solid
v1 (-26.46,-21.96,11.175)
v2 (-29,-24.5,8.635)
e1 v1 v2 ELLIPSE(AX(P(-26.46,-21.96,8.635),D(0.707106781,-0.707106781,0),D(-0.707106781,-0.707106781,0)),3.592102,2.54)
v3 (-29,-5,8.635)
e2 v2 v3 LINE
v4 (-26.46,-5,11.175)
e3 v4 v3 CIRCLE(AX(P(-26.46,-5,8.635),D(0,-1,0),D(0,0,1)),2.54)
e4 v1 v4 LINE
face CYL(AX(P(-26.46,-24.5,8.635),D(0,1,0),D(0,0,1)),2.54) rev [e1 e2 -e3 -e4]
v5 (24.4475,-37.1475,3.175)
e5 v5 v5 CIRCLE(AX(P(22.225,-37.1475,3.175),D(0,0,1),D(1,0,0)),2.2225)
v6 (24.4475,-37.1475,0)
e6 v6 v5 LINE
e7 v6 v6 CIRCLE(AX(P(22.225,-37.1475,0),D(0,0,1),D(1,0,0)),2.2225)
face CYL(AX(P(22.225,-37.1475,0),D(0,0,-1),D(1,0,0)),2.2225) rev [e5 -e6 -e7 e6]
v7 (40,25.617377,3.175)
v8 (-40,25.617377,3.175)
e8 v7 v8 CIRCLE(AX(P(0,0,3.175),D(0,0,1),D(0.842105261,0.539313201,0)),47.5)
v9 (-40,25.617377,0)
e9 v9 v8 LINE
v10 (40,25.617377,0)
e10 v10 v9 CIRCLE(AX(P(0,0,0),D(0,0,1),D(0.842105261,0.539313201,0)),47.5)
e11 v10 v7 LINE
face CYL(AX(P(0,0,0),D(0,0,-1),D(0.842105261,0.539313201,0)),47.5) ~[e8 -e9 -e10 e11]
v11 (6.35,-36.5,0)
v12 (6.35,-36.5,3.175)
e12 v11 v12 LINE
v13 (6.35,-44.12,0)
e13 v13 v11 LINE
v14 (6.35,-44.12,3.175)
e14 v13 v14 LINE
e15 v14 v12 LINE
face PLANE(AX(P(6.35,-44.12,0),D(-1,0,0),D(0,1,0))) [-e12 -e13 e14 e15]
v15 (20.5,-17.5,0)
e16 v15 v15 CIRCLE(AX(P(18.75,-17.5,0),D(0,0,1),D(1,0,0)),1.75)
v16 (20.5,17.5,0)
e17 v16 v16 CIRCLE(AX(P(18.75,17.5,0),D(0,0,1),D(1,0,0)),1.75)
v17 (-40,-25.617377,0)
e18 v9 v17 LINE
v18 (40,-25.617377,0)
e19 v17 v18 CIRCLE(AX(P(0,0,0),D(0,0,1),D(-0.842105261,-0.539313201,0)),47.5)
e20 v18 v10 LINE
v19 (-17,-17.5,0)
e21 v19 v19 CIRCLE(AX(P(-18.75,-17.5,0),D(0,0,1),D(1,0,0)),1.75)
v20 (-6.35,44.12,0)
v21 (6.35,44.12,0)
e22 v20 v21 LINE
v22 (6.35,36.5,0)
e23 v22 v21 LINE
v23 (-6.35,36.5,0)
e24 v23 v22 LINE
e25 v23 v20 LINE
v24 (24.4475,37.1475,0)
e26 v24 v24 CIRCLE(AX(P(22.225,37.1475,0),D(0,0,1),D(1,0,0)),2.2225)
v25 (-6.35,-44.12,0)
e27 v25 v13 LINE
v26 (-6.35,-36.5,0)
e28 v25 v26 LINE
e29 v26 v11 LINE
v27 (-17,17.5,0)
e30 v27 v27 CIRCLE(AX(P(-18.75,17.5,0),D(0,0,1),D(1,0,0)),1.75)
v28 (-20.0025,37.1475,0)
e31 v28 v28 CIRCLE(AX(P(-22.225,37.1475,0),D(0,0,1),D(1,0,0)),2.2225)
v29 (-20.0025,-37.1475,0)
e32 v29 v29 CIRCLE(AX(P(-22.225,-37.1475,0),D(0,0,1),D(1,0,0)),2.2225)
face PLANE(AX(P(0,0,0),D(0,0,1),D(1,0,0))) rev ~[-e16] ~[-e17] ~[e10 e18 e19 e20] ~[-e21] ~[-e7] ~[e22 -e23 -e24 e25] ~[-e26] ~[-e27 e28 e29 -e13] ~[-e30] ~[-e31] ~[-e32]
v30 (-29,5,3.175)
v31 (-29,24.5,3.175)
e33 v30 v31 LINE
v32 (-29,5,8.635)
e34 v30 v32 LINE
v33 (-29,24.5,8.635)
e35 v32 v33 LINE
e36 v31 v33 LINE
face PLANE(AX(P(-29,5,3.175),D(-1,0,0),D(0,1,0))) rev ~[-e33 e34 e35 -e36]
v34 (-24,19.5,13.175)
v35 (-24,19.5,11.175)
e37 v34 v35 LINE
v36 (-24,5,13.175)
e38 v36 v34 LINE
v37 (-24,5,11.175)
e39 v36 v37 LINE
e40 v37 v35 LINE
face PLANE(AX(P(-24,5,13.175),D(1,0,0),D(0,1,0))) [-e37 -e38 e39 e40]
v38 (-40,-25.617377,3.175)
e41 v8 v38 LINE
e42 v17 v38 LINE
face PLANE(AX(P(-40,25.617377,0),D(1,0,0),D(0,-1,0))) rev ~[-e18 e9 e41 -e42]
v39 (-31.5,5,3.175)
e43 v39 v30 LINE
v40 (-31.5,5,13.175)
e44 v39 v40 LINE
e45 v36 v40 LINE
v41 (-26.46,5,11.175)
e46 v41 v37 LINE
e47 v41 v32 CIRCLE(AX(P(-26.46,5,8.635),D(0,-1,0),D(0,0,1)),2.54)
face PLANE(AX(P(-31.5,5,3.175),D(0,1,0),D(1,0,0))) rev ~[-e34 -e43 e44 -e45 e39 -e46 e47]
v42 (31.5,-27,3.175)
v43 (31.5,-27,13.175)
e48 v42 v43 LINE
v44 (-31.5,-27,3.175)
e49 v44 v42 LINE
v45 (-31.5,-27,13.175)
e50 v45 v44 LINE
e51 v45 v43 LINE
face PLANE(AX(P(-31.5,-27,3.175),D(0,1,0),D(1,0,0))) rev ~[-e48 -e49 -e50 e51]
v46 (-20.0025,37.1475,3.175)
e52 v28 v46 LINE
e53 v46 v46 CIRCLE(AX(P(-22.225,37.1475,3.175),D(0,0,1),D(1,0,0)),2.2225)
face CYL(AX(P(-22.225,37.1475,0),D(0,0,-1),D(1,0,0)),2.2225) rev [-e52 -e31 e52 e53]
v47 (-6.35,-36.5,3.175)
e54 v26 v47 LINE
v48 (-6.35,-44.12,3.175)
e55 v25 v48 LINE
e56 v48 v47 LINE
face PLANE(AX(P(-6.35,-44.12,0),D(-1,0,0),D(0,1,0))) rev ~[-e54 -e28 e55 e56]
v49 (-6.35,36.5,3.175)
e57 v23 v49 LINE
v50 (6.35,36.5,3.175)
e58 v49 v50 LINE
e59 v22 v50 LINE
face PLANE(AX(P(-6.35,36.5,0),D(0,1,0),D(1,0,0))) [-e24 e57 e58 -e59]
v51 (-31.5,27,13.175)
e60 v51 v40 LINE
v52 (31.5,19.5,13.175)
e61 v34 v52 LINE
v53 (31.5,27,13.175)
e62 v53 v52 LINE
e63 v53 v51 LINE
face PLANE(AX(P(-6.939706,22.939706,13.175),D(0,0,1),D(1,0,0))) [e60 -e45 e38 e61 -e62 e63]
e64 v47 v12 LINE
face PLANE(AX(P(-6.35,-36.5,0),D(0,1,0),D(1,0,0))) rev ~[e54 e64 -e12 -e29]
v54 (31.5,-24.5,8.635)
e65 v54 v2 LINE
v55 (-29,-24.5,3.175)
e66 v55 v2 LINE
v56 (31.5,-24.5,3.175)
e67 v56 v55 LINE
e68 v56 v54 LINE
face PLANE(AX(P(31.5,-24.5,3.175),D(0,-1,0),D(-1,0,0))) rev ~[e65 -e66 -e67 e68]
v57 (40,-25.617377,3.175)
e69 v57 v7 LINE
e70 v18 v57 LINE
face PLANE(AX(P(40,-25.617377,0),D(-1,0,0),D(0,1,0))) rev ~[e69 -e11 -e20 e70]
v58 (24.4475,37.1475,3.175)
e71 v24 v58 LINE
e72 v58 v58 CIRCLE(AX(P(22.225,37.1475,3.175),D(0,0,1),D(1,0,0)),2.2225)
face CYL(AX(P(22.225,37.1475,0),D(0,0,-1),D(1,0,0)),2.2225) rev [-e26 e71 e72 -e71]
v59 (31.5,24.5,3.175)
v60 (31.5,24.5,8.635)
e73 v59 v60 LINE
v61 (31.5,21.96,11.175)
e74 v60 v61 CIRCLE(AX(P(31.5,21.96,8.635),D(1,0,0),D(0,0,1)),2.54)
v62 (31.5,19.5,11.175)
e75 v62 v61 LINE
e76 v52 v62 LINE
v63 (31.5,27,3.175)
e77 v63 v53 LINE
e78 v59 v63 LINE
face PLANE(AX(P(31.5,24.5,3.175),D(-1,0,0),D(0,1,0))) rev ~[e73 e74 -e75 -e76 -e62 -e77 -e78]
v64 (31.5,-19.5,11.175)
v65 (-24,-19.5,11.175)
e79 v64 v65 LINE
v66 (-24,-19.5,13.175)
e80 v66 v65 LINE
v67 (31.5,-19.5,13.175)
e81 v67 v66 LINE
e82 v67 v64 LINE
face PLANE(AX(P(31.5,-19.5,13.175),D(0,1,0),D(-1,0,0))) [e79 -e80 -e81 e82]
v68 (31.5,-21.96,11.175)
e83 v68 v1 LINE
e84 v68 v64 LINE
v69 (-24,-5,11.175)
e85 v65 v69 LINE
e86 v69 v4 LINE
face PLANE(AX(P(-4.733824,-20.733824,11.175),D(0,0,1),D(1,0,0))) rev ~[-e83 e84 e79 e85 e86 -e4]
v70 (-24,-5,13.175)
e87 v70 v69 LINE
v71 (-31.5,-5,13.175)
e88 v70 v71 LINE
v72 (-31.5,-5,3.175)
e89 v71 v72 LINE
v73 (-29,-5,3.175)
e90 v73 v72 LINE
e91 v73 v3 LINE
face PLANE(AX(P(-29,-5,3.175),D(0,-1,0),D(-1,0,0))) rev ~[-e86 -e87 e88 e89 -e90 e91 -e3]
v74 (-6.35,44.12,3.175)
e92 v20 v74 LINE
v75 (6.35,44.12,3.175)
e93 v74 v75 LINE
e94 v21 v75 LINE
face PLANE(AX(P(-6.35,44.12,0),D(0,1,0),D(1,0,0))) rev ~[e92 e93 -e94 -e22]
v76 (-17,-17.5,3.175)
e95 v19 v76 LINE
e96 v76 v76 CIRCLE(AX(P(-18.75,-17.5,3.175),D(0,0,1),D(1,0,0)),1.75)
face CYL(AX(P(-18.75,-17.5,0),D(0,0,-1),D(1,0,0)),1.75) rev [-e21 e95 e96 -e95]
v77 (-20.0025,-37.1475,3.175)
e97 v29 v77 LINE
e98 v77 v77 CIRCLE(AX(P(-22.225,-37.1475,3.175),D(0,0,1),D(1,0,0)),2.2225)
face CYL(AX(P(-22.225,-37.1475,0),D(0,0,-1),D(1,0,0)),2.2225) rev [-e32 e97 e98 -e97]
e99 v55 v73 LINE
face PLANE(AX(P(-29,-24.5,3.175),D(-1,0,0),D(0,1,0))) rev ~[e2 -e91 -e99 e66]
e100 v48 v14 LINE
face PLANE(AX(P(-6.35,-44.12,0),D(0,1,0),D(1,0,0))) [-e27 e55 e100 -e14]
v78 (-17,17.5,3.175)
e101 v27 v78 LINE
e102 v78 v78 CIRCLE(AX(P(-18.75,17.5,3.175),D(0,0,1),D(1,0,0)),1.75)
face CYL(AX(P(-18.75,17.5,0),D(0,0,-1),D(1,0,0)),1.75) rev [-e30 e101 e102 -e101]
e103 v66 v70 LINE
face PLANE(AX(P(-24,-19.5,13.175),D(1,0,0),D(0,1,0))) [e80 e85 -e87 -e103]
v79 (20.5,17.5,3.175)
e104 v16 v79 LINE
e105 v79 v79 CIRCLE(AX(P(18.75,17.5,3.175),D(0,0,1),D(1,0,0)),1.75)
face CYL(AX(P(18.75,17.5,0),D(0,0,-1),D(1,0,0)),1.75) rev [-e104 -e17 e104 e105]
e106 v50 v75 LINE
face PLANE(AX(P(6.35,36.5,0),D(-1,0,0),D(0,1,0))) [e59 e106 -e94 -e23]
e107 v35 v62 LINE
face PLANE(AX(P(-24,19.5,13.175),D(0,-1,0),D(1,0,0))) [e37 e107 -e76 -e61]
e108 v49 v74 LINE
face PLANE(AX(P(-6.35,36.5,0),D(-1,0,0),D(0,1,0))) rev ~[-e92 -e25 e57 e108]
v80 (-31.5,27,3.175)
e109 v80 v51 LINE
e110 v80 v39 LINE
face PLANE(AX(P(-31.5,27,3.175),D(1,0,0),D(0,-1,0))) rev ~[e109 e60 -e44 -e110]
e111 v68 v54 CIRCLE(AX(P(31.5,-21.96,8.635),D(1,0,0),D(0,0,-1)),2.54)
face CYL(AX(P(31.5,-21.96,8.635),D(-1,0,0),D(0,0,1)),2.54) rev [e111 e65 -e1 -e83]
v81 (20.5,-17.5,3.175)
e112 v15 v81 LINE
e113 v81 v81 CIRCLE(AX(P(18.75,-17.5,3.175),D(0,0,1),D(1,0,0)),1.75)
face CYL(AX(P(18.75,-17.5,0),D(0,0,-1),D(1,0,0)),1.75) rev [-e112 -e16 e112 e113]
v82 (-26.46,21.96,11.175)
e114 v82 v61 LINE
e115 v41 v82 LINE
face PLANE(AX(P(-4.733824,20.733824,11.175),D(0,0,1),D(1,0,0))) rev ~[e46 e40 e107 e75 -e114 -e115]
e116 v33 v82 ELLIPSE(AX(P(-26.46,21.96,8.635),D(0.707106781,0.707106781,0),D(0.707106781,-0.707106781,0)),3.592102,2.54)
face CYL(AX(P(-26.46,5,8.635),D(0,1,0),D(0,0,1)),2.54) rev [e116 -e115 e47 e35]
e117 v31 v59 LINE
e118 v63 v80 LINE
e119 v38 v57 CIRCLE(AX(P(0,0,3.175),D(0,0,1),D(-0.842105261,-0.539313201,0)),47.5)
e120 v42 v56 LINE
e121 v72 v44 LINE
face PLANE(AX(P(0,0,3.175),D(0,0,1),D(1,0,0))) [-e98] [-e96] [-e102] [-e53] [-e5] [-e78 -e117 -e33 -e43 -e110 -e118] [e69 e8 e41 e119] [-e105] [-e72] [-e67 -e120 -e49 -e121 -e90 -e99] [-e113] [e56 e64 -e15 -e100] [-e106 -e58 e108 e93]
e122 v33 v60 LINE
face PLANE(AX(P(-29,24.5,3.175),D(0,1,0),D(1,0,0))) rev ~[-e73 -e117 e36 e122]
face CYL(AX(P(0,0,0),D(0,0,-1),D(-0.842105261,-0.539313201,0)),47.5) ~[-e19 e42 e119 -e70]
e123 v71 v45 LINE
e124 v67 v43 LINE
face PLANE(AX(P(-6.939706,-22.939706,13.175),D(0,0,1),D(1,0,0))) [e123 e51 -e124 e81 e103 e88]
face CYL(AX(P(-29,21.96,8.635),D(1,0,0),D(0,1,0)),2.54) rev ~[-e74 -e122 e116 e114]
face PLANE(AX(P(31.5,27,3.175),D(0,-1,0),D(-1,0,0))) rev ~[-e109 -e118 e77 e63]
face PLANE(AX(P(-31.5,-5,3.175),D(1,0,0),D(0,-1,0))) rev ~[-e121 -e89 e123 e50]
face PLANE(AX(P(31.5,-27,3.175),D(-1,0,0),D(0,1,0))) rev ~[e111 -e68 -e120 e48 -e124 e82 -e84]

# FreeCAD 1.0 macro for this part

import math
import FreeCAD as App
import Part
import Sketcher
from FreeCAD import Vector


def edges_at(feature, points):
    """Names of the edges that pass closest to the given points."""
    edges = feature.Shape.Edges
    near = lambda p: min(range(len(edges)), key=lambda i: edges[i].distToShape(Part.Vertex(*p))[0])
    return sorted({f"Edge{near(p) + 1}" for p in points})


def add_polygon(sketch, points):
    """Adds a closed chain of lines whose ends are joined by coincident constraints."""
    first, n = sketch.GeometryCount, len(points)
    for a, b in zip(points, points[1:] + points[:1]):
        sketch.addGeometry(Part.LineSegment(App.Vector(*a, 0), App.Vector(*b, 0)), False)
    for i in range(n):
        sketch.addConstraint(Sketcher.Constraint("Coincident", first + i, 2, first + (i + 1) % n, 1))

doc = App.newDocument("Part")
params = doc.addObject("Spreadsheet::Sheet", "Params")
for row, (alias, value) in enumerate([
    ("sketch1_diameter", "3.5 mm"),
    ("sketch1_radius", "47.5 mm"),
    ("sketch1_width", "12.7 mm"),
    ("sketch1_height", "7.62 mm"),
    ("pad1_length", "3.175 mm"),
    ("sketch2_width", "63 mm"),
    ("sketch2_height", "22 mm"),
    ("sketch2_width2", "60.5 mm"),
    ("pad2_length", "10 mm"),
    ("sketch3_width", "63 mm"),
    ("sketch3_height", "22 mm"),
    ("sketch3_width2", "55.5 mm"),
    ("pad3_length", "2 mm"),
    ("fillet_radius", "2.54 mm"),
], start=1):
    params.set(f"A{row}", alias)
    params.set(f"B{row}", "=" + value)
    params.setAlias(f"B{row}", alias)

body = doc.addObject("PartDesign::Body", "Body")

# Sketch on XY plane
sketch1 = body.newObject("Sketcher::SketchObject", "Sketch")
sketch1.AttachmentSupport = (doc.getObject("XY_Plane"), [""])
sketch1.MapMode = "FlatFace"
sketch1.addGeometry(Part.LineSegment(Vector(40, -25.6, 0), Vector(40, 25.6, 0)), False)  # 0
sketch1.addGeometry(Part.ArcOfCircle(Part.Circle(Vector(0, 0, 0), Vector(0, 0, 1), 47.5), math.radians(33), math.radians(147)), False)  # 1
sketch1.addGeometry(Part.LineSegment(Vector(-40, 25.6, 0), Vector(-40, -25.6, 0)), False)  # 2
sketch1.addGeometry(Part.ArcOfCircle(Part.Circle(Vector(0, 0, 0), Vector(0, 0, 1), 47.5), math.radians(-147), math.radians(-33)), False)  # 3
sketch1.addGeometry(Part.Circle(Vector(-22.2, -37.1, 0), Vector(0, 0, 1), 2.2), False)  # 4
sketch1.addGeometry(Part.Circle(Vector(-18.8, -17.5, 0), Vector(0, 0, 1), 1.8), False)  # 5
add_polygon(sketch1, [(6.3, -44.1), (-6.3, -44.1), (-6.3, -36.5), (6.3, -36.5)])  # lines 6-9
sketch1.addGeometry(Part.Circle(Vector(22.2, -37.1, 0), Vector(0, 0, 1), 2.2), False)  # 10
sketch1.addGeometry(Part.Circle(Vector(18.8, -17.5, 0), Vector(0, 0, 1), 1.8), False)  # 11
sketch1.addGeometry(Part.Circle(Vector(-18.8, 17.5, 0), Vector(0, 0, 1), 1.8), False)  # 12
sketch1.addGeometry(Part.Circle(Vector(-22.2, 37.1, 0), Vector(0, 0, 1), 2.2), False)  # 13
sketch1.addGeometry(Part.Circle(Vector(18.8, 17.5, 0), Vector(0, 0, 1), 1.8), False)  # 14
add_polygon(sketch1, [(6.3, 36.5), (-6.3, 36.5), (-6.3, 44.1), (6.3, 44.1)])  # lines 15-18
sketch1.addGeometry(Part.Circle(Vector(22.2, 37.1, 0), Vector(0, 0, 1), 2.2), False)  # 19
sketch1.addConstraint([
    Sketcher.Constraint("Coincident", 0, 2, 1, 1),
    Sketcher.Constraint("Coincident", 1, 2, 2, 1),
    Sketcher.Constraint("Coincident", 2, 2, 3, 1),
    Sketcher.Constraint("Coincident", 3, 2, 0, 1),
    Sketcher.Constraint("Vertical", 0),
    Sketcher.Constraint("Vertical", 2),
    Sketcher.Constraint("Horizontal", 6),
    Sketcher.Constraint("Vertical", 7),
    Sketcher.Constraint("Horizontal", 8),
    Sketcher.Constraint("Vertical", 9),
    Sketcher.Constraint("Horizontal", 15),
    Sketcher.Constraint("Vertical", 16),
    Sketcher.Constraint("Horizontal", 17),
    Sketcher.Constraint("Vertical", 18),
    Sketcher.Constraint("Coincident", 1, 3, -1, 1),
    Sketcher.Constraint("Coincident", 3, 3, -1, 1),
    Sketcher.Constraint("Equal", 1, 3),
    Sketcher.Constraint("Equal", 4, 10),
    Sketcher.Constraint("Equal", 5, 11),
    Sketcher.Constraint("Equal", 11, 12),
    Sketcher.Constraint("Equal", 10, 13),
    Sketcher.Constraint("Equal", 12, 14),
    Sketcher.Constraint("Equal", 13, 19),
    Sketcher.Constraint("Symmetric", 11, 3, 12, 3, -1, 1),
    Sketcher.Constraint("Symmetric", 10, 3, 13, 3, -1, 1),
    Sketcher.Constraint("Symmetric", 5, 3, 14, 3, -1, 1),
    Sketcher.Constraint("Symmetric", 4, 3, 19, 3, -1, 1),
    Sketcher.Constraint("Symmetric", 8, 2, 15, 2, -1, 1),
    Sketcher.Constraint("Symmetric", 6, 2, 17, 2, -1, 1),
    Sketcher.Constraint("Symmetric", 4, 3, 10, 3, -2),
    Sketcher.Constraint("Symmetric", 5, 3, 11, 3, -2),
    Sketcher.Constraint("Horizontal", 0, 2, 1, 2),
    Sketcher.Constraint("Vertical", 7, 2, 15, 2),
    Sketcher.Constraint("Diameter", 5, 3.5),
    Sketcher.Constraint("Radius", 1, 47.5),
    Sketcher.Constraint("Diameter", 4, 4.445),
    Sketcher.Constraint("DistanceX", 6, 2, 6, 1, 12.7),
    Sketcher.Constraint("DistanceX", -1, 1, 0, 2, 40.0),
    Sketcher.Constraint("DistanceY", 5, 3, 12, 3, 35.0),
    Sketcher.Constraint("DistanceY", 7, 2, 5, 3, 19.0),
    Sketcher.Constraint("DistanceY", 7, 1, 7, 2, 7.62),
    Sketcher.Constraint("DistanceX", 5, 3, 11, 3, 37.5),
    Sketcher.Constraint("DistanceX", 4, 3, 10, 3, 44.45),
    Sketcher.Constraint("DistanceY", 4, 3, -1, 1, 37.1475),
])
sketch1.setExpression("Constraints[41]", "Params.sketch1_diameter")
sketch1.setExpression("Constraints[42]", "Params.sketch1_radius")
sketch1.setExpression("Constraints[44]", "Params.sketch1_width")
sketch1.setExpression("Constraints[48]", "Params.sketch1_height")
pad1 = body.newObject("PartDesign::Pad", "Pad")
pad1.Profile = sketch1
pad1.setExpression("Length", "Params.pad1_length")

# Sketch on XY plane
sketch2 = body.newObject("Sketcher::SketchObject", "Sketch001")
sketch2.AttachmentSupport = (doc.getObject("XY_Plane"), [""])
sketch2.MapMode = "FlatFace"
sketch2.AttachmentOffset = App.Placement(Vector(0, 0, 3.175), App.Rotation())
add_polygon(sketch2, [(-31.5, -27), (31.5, -27), (31.5, -24.5), (-29, -24.5), (-29, -5), (-31.5, -5)])  # lines 0-5
add_polygon(sketch2, [(31.5, 24.5), (31.5, 27), (-31.5, 27), (-31.5, 5), (-29, 5), (-29, 24.5)])  # lines 6-11
sketch2.addConstraint([
    Sketcher.Constraint("Horizontal", 0),
    Sketcher.Constraint("Vertical", 1),
    Sketcher.Constraint("Horizontal", 2),
    Sketcher.Constraint("Vertical", 3),
    Sketcher.Constraint("Horizontal", 4),
    Sketcher.Constraint("Vertical", 5),
    Sketcher.Constraint("Vertical", 6),
    Sketcher.Constraint("Horizontal", 7),
    Sketcher.Constraint("Vertical", 8),
    Sketcher.Constraint("Horizontal", 9),
    Sketcher.Constraint("Vertical", 10),
    Sketcher.Constraint("Horizontal", 11),
    Sketcher.Constraint("Symmetric", 5, 2, 6, 2, -1, 1),
    Sketcher.Constraint("Symmetric", 4, 2, 8, 2, -1),
    Sketcher.Constraint("Symmetric", 2, 2, 10, 2, -1),
    Sketcher.Constraint("Vertical", 1, 2, 6, 2),
    Sketcher.Constraint("Equal", 9, 1),
    Sketcher.Constraint("DistanceX", 0, 1, 0, 2, 63.0),
    Sketcher.Constraint("DistanceY", 5, 2, 5, 1, 22.0),
    Sketcher.Constraint("DistanceX", 2, 2, 2, 1, 60.5),
    Sketcher.Constraint("DistanceY", 0, 2, -1, 1, 27.0),
])
sketch2.setExpression("Constraints[29]", "Params.sketch2_width")
sketch2.setExpression("Constraints[30]", "Params.sketch2_height")
sketch2.setExpression("Constraints[31]", "Params.sketch2_width2")
pad2 = body.newObject("PartDesign::Pad", "Pad001")
pad2.Profile = sketch2
pad2.setExpression("Length", "Params.pad2_length")

# Sketch on XY plane
sketch3 = body.newObject("Sketcher::SketchObject", "Sketch002")
sketch3.AttachmentSupport = (doc.getObject("XY_Plane"), [""])
sketch3.MapMode = "FlatFace"
sketch3.AttachmentOffset = App.Placement(Vector(0, 0, 13.175), App.Rotation())
add_polygon(sketch3, [(-32, -27), (32, -27), (32, -20), (-24, -20), (-24, -5), (-32, -5)])  # lines 0-5
add_polygon(sketch3, [(-32, 5), (-24, 5), (-24, 20), (32, 20), (32, 27), (-32, 27)])  # lines 6-11
sketch3.addConstraint([
    Sketcher.Constraint("Horizontal", 0),
    Sketcher.Constraint("Vertical", 1),
    Sketcher.Constraint("Horizontal", 2),
    Sketcher.Constraint("Vertical", 3),
    Sketcher.Constraint("Horizontal", 4),
    Sketcher.Constraint("Vertical", 5),
    Sketcher.Constraint("Horizontal", 6),
    Sketcher.Constraint("Vertical", 7),
    Sketcher.Constraint("Horizontal", 8),
    Sketcher.Constraint("Vertical", 9),
    Sketcher.Constraint("Horizontal", 10),
    Sketcher.Constraint("Vertical", 11),
    Sketcher.Constraint("Symmetric", 5, 2, 9, 2, -1, 1),
    Sketcher.Constraint("Symmetric", 3, 2, 6, 2, -1),
    Sketcher.Constraint("Symmetric", 1, 2, 8, 2, -1),
    Sketcher.Constraint("Vertical", 5, 2, 10, 2),
    Sketcher.Constraint("Equal", 6, 1),
    Sketcher.Constraint("DistanceX", 0, 1, 0, 2, 63.0),
    Sketcher.Constraint("DistanceY", 5, 2, 5, 1, 22.0),
    Sketcher.Constraint("DistanceX", 2, 2, 2, 1, 55.5),
    Sketcher.Constraint("DistanceY", 0, 2, -1, 1, 27.0),
])
sketch3.setExpression("Constraints[29]", "Params.sketch3_width")
sketch3.setExpression("Constraints[30]", "Params.sketch3_height")
sketch3.setExpression("Constraints[31]", "Params.sketch3_width2")
pad3 = body.newObject("PartDesign::Pad", "Pad002")
pad3.Profile = sketch3
pad3.setExpression("Length", "Params.pad3_length")
pad3.Reversed = True
doc.recompute()

fillet = body.newObject("PartDesign::Fillet", "Fillet")
fillet.Base = (pad3, edges_at(pad3, [
    (1.25, -24.5, 11.175),
    (1.25, 24.5, 11.175),
    (-29, -14.75, 11.175),
    (-29, 14.75, 11.175),
]))
fillet.setExpression("Radius", "Params.fillet_radius")

doc.recompute()
